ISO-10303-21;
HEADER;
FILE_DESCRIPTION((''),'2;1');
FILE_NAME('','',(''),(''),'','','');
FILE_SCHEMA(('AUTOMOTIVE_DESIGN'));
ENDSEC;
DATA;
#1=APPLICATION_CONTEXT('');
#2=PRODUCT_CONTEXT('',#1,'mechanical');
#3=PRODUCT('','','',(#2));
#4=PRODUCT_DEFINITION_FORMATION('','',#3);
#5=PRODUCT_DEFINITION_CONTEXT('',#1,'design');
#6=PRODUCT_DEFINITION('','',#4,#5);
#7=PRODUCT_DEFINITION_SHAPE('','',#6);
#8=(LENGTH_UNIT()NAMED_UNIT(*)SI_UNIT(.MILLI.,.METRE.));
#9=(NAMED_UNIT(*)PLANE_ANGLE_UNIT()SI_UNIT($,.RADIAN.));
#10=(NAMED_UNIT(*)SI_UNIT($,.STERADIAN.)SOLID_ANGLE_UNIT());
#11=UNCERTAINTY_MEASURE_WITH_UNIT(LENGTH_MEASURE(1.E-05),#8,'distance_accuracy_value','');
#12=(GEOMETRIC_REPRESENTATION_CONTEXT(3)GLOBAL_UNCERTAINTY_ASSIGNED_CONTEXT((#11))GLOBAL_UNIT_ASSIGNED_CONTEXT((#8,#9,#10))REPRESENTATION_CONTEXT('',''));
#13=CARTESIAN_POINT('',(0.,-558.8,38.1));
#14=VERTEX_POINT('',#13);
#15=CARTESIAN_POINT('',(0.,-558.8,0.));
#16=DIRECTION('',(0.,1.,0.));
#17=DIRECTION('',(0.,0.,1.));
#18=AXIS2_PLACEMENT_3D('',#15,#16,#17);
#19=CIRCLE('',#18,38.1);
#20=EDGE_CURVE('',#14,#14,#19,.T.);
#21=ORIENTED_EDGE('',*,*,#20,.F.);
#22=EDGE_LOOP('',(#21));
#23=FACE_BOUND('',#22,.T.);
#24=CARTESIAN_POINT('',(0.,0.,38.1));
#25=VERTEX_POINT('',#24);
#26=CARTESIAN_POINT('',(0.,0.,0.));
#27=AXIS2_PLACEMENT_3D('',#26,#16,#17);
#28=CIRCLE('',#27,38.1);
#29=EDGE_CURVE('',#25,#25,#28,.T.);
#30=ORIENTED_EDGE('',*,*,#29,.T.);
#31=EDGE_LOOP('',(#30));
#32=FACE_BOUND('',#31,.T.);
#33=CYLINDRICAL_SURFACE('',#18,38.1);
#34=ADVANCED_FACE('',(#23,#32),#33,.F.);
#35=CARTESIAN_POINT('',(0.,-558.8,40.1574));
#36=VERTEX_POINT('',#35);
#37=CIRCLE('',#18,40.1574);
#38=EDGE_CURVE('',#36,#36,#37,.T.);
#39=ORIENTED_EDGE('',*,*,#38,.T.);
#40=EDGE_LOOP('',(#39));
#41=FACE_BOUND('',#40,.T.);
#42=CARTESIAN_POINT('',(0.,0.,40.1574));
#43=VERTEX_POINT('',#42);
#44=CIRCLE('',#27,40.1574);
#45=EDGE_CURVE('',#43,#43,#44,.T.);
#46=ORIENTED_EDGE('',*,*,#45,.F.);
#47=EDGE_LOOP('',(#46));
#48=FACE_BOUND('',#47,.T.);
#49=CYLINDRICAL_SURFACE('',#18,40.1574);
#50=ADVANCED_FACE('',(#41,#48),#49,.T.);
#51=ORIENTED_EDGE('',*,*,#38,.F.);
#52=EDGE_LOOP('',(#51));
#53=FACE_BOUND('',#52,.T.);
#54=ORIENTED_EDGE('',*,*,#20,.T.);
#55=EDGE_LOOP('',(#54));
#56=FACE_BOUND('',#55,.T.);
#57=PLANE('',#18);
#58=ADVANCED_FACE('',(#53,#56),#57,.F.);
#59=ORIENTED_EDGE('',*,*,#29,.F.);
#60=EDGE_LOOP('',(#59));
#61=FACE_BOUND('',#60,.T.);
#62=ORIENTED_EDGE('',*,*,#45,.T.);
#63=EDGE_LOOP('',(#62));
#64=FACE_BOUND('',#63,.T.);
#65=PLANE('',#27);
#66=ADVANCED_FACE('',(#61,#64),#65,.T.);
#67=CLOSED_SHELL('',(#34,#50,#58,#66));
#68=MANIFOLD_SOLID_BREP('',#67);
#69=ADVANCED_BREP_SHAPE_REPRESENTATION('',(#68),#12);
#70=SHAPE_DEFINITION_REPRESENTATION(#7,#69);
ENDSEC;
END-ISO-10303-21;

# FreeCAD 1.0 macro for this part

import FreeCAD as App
import Part
import Sketcher
from FreeCAD import Vector
Q = App.Units.Quantity

doc = App.newDocument("Part")
body = doc.addObject("PartDesign::Body", "Body")

# Sketch on XZ plane
sketch1 = body.newObject("Sketcher::SketchObject", "Sketch")
sketch1.AttachmentSupport = (doc.getObject("XZ_Plane"), [""])
sketch1.MapMode = "FlatFace"
sketch1.addGeometry(Part.Circle(Vector(0, 0, 0), Vector(0, 0, 1), 40), False)
sketch1.addGeometry(Part.Circle(Vector(0, 0, 0), Vector(0, 0, 1), 38), False)
sketch1.addConstraint(Sketcher.Constraint("Coincident", 0, 3, -1, 1))
sketch1.addConstraint(Sketcher.Constraint("Coincident", 1, 3, -1, 1))
sketch1.addConstraint(Sketcher.Constraint("Diameter", 1, Q("3 in")))
sketch1.addConstraint(Sketcher.Constraint("Diameter", 0, Q("3.162 in")))
pad1 = body.newObject("PartDesign::Pad", "Pad")
pad1.Profile = sketch1
pad1.Length = Q("22 in")

doc.recompute()
